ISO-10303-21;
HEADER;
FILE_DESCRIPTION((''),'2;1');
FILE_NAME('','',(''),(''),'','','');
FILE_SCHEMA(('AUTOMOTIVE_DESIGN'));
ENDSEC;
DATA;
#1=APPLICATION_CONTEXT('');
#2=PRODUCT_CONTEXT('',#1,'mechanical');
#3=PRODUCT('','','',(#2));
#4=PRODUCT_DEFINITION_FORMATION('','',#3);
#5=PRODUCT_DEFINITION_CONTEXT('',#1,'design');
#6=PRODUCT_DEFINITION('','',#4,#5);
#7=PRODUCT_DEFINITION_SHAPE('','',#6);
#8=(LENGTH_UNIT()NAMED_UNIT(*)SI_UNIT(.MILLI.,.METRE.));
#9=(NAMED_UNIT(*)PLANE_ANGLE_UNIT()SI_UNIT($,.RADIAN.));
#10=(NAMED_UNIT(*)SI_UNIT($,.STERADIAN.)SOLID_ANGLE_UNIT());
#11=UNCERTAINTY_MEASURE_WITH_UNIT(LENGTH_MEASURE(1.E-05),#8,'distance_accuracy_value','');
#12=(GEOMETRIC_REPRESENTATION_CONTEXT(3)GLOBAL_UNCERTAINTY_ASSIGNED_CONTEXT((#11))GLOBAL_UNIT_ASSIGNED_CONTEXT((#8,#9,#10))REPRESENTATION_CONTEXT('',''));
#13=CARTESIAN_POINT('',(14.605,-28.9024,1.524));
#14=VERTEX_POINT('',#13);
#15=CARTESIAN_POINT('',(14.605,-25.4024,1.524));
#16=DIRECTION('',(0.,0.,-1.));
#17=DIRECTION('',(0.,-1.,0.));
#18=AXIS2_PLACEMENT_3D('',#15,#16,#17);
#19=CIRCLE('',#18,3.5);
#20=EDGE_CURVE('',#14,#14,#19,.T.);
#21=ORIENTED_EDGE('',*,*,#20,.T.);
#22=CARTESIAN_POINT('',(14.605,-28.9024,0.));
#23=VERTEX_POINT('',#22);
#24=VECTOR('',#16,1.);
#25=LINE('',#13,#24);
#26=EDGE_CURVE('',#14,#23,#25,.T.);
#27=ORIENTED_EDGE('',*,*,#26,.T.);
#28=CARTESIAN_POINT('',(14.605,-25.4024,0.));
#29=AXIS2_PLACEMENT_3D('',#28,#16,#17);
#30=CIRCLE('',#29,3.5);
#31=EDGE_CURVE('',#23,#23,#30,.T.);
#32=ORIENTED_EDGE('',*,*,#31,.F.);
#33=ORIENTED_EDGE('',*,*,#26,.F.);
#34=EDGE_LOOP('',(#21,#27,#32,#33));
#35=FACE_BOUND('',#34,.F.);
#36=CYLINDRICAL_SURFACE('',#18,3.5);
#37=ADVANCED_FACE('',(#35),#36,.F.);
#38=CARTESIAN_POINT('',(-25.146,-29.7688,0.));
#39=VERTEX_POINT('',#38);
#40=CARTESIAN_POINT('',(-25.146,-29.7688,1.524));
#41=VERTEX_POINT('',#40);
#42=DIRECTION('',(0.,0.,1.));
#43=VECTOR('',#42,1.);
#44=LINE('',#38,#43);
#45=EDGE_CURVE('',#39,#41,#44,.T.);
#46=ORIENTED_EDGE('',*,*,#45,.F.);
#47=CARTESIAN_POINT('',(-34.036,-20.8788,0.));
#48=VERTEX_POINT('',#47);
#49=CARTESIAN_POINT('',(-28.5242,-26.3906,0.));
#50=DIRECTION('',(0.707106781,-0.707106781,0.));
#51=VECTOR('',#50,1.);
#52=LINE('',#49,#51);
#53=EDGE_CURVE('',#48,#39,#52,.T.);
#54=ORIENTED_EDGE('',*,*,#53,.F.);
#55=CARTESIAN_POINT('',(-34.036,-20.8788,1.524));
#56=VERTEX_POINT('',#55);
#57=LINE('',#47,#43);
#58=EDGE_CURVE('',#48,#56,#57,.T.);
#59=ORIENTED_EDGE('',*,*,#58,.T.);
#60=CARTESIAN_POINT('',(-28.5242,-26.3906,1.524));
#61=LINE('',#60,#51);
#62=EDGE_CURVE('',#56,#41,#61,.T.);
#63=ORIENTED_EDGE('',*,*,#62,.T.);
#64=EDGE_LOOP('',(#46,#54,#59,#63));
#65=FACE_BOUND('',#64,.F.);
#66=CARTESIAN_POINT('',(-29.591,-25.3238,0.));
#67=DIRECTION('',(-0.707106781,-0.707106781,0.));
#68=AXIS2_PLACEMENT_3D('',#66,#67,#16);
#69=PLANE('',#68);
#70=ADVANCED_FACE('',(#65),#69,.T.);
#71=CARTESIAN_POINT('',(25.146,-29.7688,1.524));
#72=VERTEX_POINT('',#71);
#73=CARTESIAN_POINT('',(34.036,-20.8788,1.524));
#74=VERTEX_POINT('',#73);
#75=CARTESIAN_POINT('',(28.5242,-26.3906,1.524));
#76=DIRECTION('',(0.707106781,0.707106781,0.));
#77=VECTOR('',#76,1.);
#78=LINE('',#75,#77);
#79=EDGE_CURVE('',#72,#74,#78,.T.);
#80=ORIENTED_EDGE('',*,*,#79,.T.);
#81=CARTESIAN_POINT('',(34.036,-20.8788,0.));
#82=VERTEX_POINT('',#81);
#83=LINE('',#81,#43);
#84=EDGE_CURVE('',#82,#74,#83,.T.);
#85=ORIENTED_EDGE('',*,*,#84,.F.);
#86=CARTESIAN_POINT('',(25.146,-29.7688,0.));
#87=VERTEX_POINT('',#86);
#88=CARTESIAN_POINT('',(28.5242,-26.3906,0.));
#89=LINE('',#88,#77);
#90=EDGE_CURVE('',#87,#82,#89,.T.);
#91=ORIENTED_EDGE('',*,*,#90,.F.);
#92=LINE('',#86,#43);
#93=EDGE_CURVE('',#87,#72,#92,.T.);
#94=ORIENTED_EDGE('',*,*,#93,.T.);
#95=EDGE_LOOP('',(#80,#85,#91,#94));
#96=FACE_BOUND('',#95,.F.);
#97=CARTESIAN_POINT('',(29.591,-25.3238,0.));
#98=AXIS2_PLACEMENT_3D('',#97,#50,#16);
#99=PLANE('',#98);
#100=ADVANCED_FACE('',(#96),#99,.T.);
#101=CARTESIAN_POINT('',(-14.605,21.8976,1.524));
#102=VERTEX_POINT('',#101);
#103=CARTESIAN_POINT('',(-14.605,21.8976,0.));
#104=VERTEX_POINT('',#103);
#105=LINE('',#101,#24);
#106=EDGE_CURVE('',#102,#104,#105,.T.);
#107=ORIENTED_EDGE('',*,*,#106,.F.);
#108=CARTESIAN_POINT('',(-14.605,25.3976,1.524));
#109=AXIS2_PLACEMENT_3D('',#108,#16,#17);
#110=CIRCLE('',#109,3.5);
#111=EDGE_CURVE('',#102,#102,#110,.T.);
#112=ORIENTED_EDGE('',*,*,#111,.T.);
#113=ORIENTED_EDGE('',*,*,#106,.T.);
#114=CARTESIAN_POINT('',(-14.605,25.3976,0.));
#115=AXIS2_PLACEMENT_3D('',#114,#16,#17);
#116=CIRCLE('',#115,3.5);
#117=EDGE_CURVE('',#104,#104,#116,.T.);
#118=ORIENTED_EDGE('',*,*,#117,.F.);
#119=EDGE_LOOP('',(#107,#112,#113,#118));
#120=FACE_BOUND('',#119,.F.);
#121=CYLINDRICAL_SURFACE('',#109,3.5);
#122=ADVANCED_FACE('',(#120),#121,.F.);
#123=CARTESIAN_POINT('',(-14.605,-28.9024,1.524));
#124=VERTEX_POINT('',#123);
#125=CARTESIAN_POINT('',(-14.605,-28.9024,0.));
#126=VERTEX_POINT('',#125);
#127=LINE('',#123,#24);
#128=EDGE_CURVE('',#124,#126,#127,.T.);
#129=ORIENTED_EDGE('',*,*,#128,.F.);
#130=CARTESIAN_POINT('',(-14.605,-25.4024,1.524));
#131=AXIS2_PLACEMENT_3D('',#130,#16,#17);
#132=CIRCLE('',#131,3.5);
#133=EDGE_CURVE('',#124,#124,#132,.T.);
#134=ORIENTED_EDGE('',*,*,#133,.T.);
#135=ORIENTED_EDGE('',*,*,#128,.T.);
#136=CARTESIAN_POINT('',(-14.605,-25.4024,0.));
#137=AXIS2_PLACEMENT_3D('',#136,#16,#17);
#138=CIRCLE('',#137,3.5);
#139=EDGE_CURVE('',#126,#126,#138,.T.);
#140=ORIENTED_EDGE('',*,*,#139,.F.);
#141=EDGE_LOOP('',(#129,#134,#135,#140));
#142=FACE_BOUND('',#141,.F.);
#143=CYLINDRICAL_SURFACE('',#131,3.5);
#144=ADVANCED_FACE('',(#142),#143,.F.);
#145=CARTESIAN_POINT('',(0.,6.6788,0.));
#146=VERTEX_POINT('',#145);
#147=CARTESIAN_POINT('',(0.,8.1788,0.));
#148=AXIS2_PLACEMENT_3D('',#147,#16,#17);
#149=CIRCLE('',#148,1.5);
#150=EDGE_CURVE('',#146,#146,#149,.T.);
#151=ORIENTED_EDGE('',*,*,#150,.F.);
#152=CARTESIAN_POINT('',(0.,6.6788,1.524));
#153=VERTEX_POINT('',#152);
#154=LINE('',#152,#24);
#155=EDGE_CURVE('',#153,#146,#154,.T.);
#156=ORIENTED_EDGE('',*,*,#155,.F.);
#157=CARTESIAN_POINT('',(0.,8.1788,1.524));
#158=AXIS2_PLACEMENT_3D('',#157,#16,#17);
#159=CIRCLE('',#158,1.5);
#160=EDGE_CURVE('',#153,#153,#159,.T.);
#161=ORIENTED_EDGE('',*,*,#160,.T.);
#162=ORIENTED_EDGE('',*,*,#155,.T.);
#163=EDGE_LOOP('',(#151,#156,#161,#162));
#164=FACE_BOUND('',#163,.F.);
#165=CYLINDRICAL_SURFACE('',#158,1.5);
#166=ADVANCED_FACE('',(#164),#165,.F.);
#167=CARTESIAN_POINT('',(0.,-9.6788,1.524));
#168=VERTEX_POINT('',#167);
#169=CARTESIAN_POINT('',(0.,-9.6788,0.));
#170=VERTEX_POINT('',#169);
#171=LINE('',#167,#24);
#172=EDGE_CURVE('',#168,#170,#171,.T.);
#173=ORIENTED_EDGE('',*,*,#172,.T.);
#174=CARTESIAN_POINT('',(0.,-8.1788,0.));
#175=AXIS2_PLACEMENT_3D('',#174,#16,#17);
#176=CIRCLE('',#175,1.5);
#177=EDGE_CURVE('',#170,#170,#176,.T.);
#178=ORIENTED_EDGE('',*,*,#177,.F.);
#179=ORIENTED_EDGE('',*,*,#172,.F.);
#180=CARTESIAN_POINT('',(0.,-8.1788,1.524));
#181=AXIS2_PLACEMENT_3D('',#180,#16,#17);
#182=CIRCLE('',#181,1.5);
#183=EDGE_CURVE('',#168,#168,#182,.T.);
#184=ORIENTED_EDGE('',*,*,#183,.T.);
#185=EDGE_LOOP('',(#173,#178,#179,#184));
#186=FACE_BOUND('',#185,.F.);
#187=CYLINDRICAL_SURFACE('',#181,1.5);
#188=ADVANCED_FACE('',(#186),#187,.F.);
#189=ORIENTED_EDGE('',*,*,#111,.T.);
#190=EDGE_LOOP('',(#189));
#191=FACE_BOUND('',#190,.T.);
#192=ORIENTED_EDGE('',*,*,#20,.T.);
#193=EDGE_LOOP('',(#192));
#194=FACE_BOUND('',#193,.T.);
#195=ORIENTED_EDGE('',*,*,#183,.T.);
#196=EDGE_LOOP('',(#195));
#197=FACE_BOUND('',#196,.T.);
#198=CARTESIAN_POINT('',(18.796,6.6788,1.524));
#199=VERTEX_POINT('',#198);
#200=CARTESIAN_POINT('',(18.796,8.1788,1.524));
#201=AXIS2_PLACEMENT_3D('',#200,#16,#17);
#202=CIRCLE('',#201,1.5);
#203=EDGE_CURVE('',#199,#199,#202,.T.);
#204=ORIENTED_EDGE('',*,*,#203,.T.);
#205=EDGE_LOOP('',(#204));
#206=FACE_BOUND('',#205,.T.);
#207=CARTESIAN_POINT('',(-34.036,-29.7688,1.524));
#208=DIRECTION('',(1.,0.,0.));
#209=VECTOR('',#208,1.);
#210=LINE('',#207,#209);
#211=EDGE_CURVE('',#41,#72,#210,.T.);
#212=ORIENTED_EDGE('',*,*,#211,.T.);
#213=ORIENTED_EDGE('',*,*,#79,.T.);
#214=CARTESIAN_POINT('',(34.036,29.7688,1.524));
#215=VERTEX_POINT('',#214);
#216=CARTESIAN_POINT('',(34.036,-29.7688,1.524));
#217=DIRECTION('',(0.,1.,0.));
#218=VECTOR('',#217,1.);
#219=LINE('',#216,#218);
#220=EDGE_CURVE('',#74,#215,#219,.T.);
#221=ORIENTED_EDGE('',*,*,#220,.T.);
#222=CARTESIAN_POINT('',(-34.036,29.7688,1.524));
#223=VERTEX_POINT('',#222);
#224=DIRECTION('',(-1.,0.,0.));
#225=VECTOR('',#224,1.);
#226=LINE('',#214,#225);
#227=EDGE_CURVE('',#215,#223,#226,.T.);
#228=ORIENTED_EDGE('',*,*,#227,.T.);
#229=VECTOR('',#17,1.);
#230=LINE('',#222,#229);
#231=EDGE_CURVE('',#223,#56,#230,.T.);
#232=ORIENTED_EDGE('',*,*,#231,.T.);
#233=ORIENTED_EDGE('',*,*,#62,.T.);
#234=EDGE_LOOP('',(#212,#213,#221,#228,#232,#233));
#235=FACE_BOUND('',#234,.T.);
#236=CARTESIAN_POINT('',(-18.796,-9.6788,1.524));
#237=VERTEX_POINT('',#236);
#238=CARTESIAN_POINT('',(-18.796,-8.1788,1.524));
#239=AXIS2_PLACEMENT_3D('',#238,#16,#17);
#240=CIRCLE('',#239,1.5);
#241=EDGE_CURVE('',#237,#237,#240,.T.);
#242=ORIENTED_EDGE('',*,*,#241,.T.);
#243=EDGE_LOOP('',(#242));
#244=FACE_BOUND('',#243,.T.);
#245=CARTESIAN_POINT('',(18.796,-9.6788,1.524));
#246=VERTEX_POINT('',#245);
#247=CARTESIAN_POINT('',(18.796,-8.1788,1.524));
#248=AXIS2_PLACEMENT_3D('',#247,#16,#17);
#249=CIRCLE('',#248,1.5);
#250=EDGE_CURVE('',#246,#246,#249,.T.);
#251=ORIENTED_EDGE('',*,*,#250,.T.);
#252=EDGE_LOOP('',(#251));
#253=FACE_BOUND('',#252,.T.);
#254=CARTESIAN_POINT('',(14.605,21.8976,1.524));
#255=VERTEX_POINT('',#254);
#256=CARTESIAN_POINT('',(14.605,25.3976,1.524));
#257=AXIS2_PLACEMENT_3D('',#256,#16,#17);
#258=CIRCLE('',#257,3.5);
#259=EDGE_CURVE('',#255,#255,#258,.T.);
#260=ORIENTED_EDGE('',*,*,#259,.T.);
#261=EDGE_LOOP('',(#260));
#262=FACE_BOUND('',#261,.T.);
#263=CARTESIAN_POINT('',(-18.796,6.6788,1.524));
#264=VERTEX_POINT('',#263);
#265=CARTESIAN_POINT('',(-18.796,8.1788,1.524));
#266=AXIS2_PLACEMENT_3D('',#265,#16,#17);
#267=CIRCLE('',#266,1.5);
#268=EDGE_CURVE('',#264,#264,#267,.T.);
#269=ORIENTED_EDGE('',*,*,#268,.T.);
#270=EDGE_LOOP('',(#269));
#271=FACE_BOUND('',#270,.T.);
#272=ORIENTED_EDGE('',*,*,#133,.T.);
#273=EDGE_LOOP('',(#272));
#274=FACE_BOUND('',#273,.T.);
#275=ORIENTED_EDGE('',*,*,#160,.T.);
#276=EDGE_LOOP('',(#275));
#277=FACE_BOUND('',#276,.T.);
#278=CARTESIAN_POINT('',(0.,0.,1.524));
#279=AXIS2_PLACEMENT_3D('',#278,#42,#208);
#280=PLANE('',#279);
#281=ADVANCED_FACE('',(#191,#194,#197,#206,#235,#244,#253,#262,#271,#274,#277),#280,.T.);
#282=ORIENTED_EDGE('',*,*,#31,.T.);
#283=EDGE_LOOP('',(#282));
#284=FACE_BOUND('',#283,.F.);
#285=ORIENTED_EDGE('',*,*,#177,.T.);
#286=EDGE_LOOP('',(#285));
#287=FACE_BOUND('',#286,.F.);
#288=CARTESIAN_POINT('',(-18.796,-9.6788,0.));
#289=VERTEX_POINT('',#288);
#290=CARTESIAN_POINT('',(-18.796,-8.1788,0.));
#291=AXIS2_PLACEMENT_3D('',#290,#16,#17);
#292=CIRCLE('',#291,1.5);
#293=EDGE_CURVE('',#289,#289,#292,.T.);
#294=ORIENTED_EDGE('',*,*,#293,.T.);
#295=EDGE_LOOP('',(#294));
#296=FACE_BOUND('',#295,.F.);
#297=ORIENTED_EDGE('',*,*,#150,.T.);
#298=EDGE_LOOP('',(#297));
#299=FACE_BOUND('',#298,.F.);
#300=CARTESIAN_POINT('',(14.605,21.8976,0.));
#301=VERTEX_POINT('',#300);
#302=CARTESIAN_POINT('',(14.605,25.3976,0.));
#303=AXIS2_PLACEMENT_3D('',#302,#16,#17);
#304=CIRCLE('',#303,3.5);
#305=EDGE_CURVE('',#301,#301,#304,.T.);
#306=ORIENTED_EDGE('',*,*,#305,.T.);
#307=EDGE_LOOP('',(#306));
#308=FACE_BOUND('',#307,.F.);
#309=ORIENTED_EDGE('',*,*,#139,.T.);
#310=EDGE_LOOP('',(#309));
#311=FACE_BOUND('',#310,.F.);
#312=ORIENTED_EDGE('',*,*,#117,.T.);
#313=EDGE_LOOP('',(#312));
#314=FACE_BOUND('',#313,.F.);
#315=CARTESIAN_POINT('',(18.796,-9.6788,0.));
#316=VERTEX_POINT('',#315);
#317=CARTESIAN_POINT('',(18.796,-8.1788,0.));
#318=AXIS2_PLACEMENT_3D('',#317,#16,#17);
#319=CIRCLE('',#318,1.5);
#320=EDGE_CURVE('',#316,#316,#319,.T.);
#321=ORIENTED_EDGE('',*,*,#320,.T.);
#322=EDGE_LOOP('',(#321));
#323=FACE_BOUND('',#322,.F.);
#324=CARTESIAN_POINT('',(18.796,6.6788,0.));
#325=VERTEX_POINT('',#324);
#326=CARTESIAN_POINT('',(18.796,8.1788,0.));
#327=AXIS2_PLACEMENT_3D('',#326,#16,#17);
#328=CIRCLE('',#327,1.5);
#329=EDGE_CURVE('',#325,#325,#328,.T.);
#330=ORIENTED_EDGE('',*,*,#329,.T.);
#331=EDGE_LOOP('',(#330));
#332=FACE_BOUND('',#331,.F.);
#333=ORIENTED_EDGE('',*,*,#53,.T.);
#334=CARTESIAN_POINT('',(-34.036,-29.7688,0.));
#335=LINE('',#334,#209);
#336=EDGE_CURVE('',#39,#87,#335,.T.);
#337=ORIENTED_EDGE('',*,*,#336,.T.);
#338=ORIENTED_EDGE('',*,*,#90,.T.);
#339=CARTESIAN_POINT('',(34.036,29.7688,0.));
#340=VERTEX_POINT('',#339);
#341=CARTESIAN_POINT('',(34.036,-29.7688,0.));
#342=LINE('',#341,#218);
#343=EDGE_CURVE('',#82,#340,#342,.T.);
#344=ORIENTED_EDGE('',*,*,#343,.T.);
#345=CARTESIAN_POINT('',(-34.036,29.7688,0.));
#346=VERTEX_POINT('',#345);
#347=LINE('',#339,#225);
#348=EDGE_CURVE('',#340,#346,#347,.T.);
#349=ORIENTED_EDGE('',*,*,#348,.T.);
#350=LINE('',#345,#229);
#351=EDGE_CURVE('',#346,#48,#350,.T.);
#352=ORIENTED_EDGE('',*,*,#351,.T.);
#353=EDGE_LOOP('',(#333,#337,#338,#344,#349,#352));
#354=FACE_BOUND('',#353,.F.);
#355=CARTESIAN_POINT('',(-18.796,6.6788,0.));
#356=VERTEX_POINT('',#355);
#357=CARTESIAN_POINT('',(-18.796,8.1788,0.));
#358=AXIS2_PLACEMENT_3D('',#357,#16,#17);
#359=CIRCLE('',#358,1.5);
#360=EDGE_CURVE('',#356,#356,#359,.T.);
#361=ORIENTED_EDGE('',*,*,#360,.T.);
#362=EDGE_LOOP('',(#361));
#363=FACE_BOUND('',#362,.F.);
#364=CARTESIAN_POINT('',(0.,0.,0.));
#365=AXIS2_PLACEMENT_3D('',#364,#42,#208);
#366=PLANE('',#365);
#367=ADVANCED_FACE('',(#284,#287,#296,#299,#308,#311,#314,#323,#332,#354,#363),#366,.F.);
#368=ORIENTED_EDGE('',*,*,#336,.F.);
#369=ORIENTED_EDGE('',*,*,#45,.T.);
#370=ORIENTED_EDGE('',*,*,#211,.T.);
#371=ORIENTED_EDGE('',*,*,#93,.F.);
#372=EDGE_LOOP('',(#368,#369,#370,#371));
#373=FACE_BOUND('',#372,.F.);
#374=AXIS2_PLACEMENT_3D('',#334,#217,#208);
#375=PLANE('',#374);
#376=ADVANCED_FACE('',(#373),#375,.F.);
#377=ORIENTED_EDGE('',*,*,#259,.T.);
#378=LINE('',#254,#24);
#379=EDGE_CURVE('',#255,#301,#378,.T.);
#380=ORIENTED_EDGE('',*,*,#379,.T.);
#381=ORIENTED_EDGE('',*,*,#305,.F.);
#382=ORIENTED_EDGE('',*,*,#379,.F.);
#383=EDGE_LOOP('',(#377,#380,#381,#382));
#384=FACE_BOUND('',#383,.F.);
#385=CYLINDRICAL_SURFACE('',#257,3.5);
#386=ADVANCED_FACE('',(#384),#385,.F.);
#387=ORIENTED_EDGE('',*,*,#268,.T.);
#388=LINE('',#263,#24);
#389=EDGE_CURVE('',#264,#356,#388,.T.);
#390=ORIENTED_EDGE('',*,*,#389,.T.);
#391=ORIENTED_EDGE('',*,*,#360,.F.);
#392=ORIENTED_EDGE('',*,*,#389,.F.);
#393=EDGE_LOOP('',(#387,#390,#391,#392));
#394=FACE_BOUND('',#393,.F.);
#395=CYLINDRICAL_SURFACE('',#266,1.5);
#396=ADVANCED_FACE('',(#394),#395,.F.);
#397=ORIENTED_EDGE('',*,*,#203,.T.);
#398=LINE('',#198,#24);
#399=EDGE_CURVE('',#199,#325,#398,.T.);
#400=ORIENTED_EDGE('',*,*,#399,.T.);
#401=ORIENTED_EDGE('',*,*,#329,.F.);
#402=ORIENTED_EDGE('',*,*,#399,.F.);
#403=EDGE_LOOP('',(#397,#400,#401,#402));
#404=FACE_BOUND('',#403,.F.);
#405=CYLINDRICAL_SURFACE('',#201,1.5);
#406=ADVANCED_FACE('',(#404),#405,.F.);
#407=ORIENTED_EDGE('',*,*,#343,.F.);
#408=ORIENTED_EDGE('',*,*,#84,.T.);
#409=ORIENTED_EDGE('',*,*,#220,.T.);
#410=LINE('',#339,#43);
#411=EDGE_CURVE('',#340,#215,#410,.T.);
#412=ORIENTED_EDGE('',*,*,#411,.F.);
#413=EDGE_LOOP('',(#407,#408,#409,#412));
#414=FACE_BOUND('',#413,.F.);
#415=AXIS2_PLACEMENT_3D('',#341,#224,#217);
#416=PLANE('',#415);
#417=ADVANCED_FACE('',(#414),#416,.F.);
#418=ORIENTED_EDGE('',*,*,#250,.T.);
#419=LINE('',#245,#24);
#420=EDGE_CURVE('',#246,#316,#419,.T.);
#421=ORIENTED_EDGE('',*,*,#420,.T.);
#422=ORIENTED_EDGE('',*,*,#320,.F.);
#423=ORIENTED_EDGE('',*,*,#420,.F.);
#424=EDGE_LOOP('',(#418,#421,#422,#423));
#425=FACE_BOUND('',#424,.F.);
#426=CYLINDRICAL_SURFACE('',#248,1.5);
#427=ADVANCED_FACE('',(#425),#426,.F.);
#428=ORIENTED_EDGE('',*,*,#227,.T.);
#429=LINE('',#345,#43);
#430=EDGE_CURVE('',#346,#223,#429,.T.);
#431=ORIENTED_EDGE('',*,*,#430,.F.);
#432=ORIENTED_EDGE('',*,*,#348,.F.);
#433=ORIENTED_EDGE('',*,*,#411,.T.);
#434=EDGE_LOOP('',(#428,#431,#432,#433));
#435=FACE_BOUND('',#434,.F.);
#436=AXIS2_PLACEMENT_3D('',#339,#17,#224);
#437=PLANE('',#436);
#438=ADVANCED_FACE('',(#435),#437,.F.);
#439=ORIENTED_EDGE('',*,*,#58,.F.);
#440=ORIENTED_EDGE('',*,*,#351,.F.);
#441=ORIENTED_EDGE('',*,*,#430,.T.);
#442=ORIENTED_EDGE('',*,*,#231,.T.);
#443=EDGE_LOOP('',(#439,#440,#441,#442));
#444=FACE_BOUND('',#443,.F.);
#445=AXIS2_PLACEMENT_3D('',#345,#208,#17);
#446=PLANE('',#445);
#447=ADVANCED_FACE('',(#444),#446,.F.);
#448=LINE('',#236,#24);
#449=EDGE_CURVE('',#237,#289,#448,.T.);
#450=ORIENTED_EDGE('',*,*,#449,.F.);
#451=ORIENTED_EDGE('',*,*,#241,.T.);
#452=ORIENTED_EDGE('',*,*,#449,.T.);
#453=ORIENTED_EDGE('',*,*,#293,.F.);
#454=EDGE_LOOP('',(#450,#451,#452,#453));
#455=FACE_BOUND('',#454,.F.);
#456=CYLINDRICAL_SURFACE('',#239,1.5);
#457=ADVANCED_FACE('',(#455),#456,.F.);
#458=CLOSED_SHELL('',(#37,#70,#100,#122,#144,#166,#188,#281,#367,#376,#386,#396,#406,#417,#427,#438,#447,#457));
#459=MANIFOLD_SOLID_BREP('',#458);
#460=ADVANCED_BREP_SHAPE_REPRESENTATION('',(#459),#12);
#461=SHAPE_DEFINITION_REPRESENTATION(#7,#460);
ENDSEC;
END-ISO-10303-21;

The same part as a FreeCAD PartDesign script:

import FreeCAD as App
import Part
import Sketcher

V = App.Vector
Q = App.Units.Quantity


def edges_at(feature, points):
    """Names of the edges that pass closest to the given points."""
    edges = feature.Shape.Edges
    near = lambda p: min(range(len(edges)), key=lambda i: edges[i].distToShape(Part.Vertex(*p))[0])
    return sorted({f"Edge{near(p) + 1}" for p in points})

doc = App.newDocument("Part")
body = doc.addObject("PartDesign::Body", "Body")

# Sketch on XY plane
sketch1 = body.newObject("Sketcher::SketchObject", "Sketch")
sketch1.AttachmentSupport = (doc.getObject("XY_Plane"), [""])
sketch1.MapMode = "FlatFace"
sketch1.addGeometry(Part.LineSegment(V(-34, 30, 0), V(-34, -30, 0)), False)
sketch1.addGeometry(Part.LineSegment(V(-34, -30, 0), V(34, -30, 0)), False)
sketch1.addGeometry(Part.LineSegment(V(34, -30, 0), V(34, 30, 0)), False)
sketch1.addGeometry(Part.LineSegment(V(34, 30, 0), V(-34, 30, 0)), False)
sketch1.addConstraint(Sketcher.Constraint("Coincident", 0, 2, 1, 1))
sketch1.addConstraint(Sketcher.Constraint("Coincident", 1, 2, 2, 1))
sketch1.addConstraint(Sketcher.Constraint("Coincident", 2, 2, 3, 1))
sketch1.addConstraint(Sketcher.Constraint("Coincident", 3, 2, 0, 1))
sketch1.addConstraint(Sketcher.Constraint("Vertical", 0))
sketch1.addConstraint(Sketcher.Constraint("Horizontal", 1))
sketch1.addConstraint(Sketcher.Constraint("Vertical", 2))
sketch1.addConstraint(Sketcher.Constraint("Horizontal", 3))
sketch1.addConstraint(Sketcher.Constraint("Symmetric", 0, 2, 2, 2, -1, 1))
sketch1.addConstraint(Sketcher.Constraint("DistanceX", 1, 1, 1, 2, Q("2.68 in")))
sketch1.addConstraint(Sketcher.Constraint("DistanceY", 0, 2, 0, 1, Q("2.344 in")))
pad1 = body.newObject("PartDesign::Pad", "Pad")
pad1.Profile = sketch1
pad1.Length = Q("0.06 in")

# Sketch on XY plane
sketch2 = body.newObject("Sketcher::SketchObject", "Sketch001")
sketch2.AttachmentSupport = (doc.getObject("XY_Plane"), [""])
sketch2.MapMode = "FlatFace"
sketch2.AttachmentOffset = App.Placement(V(0, 0, 0.06 * 25.4), App.Rotation())
sketch2.addGeometry(Part.Circle(V(-18.8, 8.2, 0), V(0, 0, 1), 1.5), False)
sketch2.addGeometry(Part.Circle(V(-18.8, -8.2, 0), V(0, 0, 1), 1.5), False)
sketch2.addGeometry(Part.Circle(V(0, 8.2, 0), V(0, 0, 1), 1.5), False)
sketch2.addGeometry(Part.Circle(V(0, -8.2, 0), V(0, 0, 1), 1.5), False)
sketch2.addGeometry(Part.Circle(V(18.8, 8.2, 0), V(0, 0, 1), 1.5), False)
sketch2.addGeometry(Part.Circle(V(18.8, -8.2, 0), V(0, 0, 1), 1.5), False)
sketch2.addConstraint(Sketcher.Constraint("Equal", 0, 1))
sketch2.addConstraint(Sketcher.Constraint("Equal", 1, 2))
sketch2.addConstraint(Sketcher.Constraint("Equal", 2, 3))
sketch2.addConstraint(Sketcher.Constraint("Equal", 3, 4))
sketch2.addConstraint(Sketcher.Constraint("Equal", 4, 5))
sketch2.addConstraint(Sketcher.Constraint("Symmetric", 2, 3, 3, 3, -1, 1))
sketch2.addConstraint(Sketcher.Constraint("Symmetric", 1, 3, 4, 3, -1, 1))
sketch2.addConstraint(Sketcher.Constraint("Symmetric", 0, 3, 5, 3, -1, 1))
sketch2.addConstraint(Sketcher.Constraint("Symmetric", 0, 3, 4, 3, -2))
sketch2.addConstraint(Sketcher.Constraint("PointOnObject", 2, 3, -2))
sketch2.addConstraint(Sketcher.Constraint("Horizontal", 0, 3, 2, 3))
sketch2.addConstraint(Sketcher.Constraint("Diameter", 0, Q("0.1181 in")))
sketch2.addConstraint(Sketcher.Constraint("DistanceX", 0, 3, -1, 1, Q("0.74 in")))
sketch2.addConstraint(Sketcher.Constraint("DistanceY", -1, 1, 0, 3, Q("0.322 in")))
doc.recompute()
hole = body.newObject("PartDesign::Hole", "Hole")
hole.Profile = sketch2
hole.ThreadType = "None"
hole.Diameter = Q("0.1181102 in")
hole.DepthType = "Dimension"
hole.Depth = Q("1 in")
hole.DrillPoint = "Angled"
hole.DrillPointAngle = 118
doc.recompute()

chamfer = body.newObject("PartDesign::Chamfer", "Chamfer")
chamfer.Base = (hole, edges_at(hole, [(-34.036, -29.769, 0.762), (34.036, -29.769, 0.762)]))
chamfer.Size = Q("0.35 in")

# Sketch on XY plane
sketch3 = body.newObject("Sketcher::SketchObject", "Sketch002")
sketch3.AttachmentSupport = (doc.getObject("XY_Plane"), [""])
sketch3.MapMode = "FlatFace"
sketch3.AttachmentOffset = App.Placement(V(0, 0, 0.06 * 25.4), App.Rotation())
sketch3.addGeometry(Part.Circle(V(-14.6, 25.4, 0), V(0, 0, 1), 3.5), False)
sketch3.addGeometry(Part.Circle(V(14.6, 25.4, 0), V(0, 0, 1), 3.5), False)
sketch3.addGeometry(Part.Circle(V(14.6, -25.4, 0), V(0, 0, 1), 3.5), False)
sketch3.addGeometry(Part.Circle(V(-14.6, -25.4, 0), V(0, 0, 1), 3.5), False)
sketch3.addConstraint(Sketcher.Constraint("Equal", 0, 1))
sketch3.addConstraint(Sketcher.Constraint("Equal", 1, 2))
sketch3.addConstraint(Sketcher.Constraint("Equal", 2, 3))
sketch3.addConstraint(Sketcher.Constraint("Symmetric", 0, 3, 1, 3, -2))
sketch3.addConstraint(Sketcher.Constraint("Symmetric", 2, 3, 3, 3, -2))
sketch3.addConstraint(Sketcher.Constraint("Vertical", 1, 3, 2, 3))
sketch3.addConstraint(Sketcher.Constraint("DistanceY", 2, 3, 1, 3, Q("2 in")))
sketch3.addConstraint(Sketcher.Constraint("Diameter", 0, Q("0.2756 in")))
sketch3.addConstraint(Sketcher.Constraint("DistanceX", 0, 3, 1, 3, Q("1.15 in")))
sketch3.addConstraint(Sketcher.Constraint("DistanceY", -1, 1, 0, 3, Q("0.9999 in")))
doc.recompute()
hole2 = body.newObject("PartDesign::Hole", "Hole001")
hole2.Profile = sketch3
hole2.ThreadType = "None"
hole2.Diameter = Q("0.2755906 in")
hole2.DepthType = "ThroughAll"

doc.recompute()
